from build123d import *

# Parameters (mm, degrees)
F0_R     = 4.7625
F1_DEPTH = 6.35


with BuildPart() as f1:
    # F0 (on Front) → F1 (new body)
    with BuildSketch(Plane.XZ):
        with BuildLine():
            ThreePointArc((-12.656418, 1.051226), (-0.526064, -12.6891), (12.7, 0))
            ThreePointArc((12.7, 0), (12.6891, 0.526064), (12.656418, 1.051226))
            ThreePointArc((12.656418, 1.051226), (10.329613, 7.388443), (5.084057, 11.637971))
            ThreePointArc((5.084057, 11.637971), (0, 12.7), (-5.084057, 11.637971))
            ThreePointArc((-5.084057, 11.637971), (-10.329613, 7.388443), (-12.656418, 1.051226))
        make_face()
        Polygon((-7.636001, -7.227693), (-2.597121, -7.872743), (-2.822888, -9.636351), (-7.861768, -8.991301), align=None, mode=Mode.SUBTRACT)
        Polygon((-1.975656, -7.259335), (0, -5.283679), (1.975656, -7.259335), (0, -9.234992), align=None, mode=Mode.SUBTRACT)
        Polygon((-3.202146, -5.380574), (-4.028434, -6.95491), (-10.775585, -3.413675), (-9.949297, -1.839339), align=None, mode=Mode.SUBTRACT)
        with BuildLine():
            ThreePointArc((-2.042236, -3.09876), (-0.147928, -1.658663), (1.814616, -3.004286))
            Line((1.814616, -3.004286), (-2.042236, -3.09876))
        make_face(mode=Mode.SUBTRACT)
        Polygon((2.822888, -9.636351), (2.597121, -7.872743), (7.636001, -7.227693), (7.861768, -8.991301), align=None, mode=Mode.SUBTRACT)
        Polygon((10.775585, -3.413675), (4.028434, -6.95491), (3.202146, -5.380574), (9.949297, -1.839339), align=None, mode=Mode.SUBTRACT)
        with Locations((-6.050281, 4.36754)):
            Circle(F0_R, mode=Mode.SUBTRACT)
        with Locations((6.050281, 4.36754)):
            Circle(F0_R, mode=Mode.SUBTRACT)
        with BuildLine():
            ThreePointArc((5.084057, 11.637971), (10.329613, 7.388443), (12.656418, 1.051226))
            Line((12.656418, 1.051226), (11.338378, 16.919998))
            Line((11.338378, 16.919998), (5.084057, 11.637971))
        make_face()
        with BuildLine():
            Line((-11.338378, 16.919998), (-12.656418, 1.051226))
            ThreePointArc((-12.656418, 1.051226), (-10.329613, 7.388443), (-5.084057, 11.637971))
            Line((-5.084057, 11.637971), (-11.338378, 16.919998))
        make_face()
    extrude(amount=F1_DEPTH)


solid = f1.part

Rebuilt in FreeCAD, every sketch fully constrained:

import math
import FreeCAD as App
import Part
import Sketcher
from FreeCAD import Vector
Q = App.Units.Quantity

doc = App.newDocument("Part")
body = doc.addObject("PartDesign::Body", "Body")

sketch1 = body.newObject("Sketcher::SketchObject", "Sketch")
sketch1.AttachmentSupport = (doc.getObject("XZ_Plane"), [""])
sketch1.MapMode = "FlatFace"
sketch1.addGeometry(Part.ArcOfCircle(Part.Circle(Vector(0, 0, 0), Vector(0, 0, 1), 12.7), math.radians(175.251983), math.radians(360.000001)), False)
sketch1.addGeometry(Part.ArcOfCircle(Part.Circle(Vector(0.000266, 0.000008, 0), Vector(0, 0, 1), 12.699734), math.radians(-0.000034), math.radians(4.748082)), False)
sketch1.addGeometry(Part.LineSegment(Vector(12.656418, 1.051226, 0), Vector(11.338378, 16.919998, 0)), False)
sketch1.addGeometry(Part.LineSegment(Vector(11.338378, 16.919998, 0), Vector(5.084057, 11.637971, 0)), False)
sketch1.addGeometry(Part.ArcOfCircle(Part.Circle(Vector(0, -0.000002, 0), Vector(0, 0, 1), 12.700002), math.radians(66.401854), math.radians(113.598146)), False)
sketch1.addGeometry(Part.LineSegment(Vector(-5.084057, 11.637971, 0), Vector(-11.338378, 16.919998, 0)), False)
sketch1.addGeometry(Part.LineSegment(Vector(-11.338378, 16.919998, 0), Vector(-12.656418, 1.051226, 0)), False)
sketch1.addGeometry(Part.LineSegment(Vector(-7.861768, -8.991301, 0), Vector(-7.636001, -7.227693, 0)), False)
sketch1.addGeometry(Part.LineSegment(Vector(-7.636001, -7.227693, 0), Vector(-2.597121, -7.872743, 0)), False)
sketch1.addGeometry(Part.LineSegment(Vector(-2.597121, -7.872743, 0), Vector(-2.822888, -9.636351, 0)), False)
sketch1.addGeometry(Part.LineSegment(Vector(-2.822888, -9.636351, 0), Vector(-7.861768, -8.991301, 0)), False)
sketch1.addGeometry(Part.LineSegment(Vector(0, -9.234992, 0), Vector(-1.975656, -7.259335, 0)), False)
sketch1.addGeometry(Part.LineSegment(Vector(-1.975656, -7.259335, 0), Vector(0, -5.283679, 0)), False)
sketch1.addGeometry(Part.LineSegment(Vector(0, -5.283679, 0), Vector(1.975656, -7.259335, 0)), False)
sketch1.addGeometry(Part.LineSegment(Vector(1.975656, -7.259335, 0), Vector(0, -9.234992, 0)), False)
sketch1.addGeometry(Part.LineSegment(Vector(-9.949297, -1.839339, 0), Vector(-3.202146, -5.380574, 0)), False)
sketch1.addGeometry(Part.LineSegment(Vector(-3.202146, -5.380574, 0), Vector(-4.028434, -6.95491, 0)), False)
sketch1.addGeometry(Part.LineSegment(Vector(-4.028434, -6.95491, 0), Vector(-10.775585, -3.413675, 0)), False)
sketch1.addGeometry(Part.LineSegment(Vector(-10.775585, -3.413675, 0), Vector(-9.949297, -1.839339, 0)), False)
sketch1.addGeometry(Part.LineSegment(Vector(1.814616, -3.004286, 0), Vector(-2.042236, -3.09876, 0)), False)
sketch1.addGeometry(Part.ArcOfCircle(Part.Circle(Vector(-0.098169, -3.690054, 0), Vector(0, 0, 1), 2.032), math.radians(19.723667), math.radians(163.082704)), False)
sketch1.addGeometry(Part.LineSegment(Vector(7.861768, -8.991301, 0), Vector(2.822888, -9.636351, 0)), False)
sketch1.addGeometry(Part.LineSegment(Vector(2.822888, -9.636351, 0), Vector(2.597121, -7.872743, 0)), False)
sketch1.addGeometry(Part.LineSegment(Vector(2.597121, -7.872743, 0), Vector(7.636001, -7.227693, 0)), False)
sketch1.addGeometry(Part.LineSegment(Vector(7.636001, -7.227693, 0), Vector(7.861768, -8.991301, 0)), False)
sketch1.addGeometry(Part.LineSegment(Vector(9.949297, -1.839339, 0), Vector(10.775585, -3.413675, 0)), False)
sketch1.addGeometry(Part.LineSegment(Vector(10.775585, -3.413675, 0), Vector(4.028434, -6.95491, 0)), False)
sketch1.addGeometry(Part.LineSegment(Vector(4.028434, -6.95491, 0), Vector(3.202146, -5.380574, 0)), False)
sketch1.addGeometry(Part.LineSegment(Vector(3.202146, -5.380574, 0), Vector(9.949297, -1.839339, 0)), False)
sketch1.addGeometry(Part.Circle(Vector(-6.050281, 4.36754, 0), Vector(0, 0, 1), 4.7625), False)
sketch1.addGeometry(Part.Circle(Vector(6.050281, 4.36754, 0), Vector(0, 0, 1), 4.7625), False)
sketch1.addConstraint(Sketcher.Constraint("Coincident", 0, 2, 1, 1))
sketch1.addConstraint(Sketcher.Constraint("Coincident", 1, 2, 2, 1))
sketch1.addConstraint(Sketcher.Constraint("Coincident", 2, 2, 3, 1))
sketch1.addConstraint(Sketcher.Constraint("Coincident", 3, 2, 4, 1))
sketch1.addConstraint(Sketcher.Constraint("Coincident", 4, 2, 5, 1))
sketch1.addConstraint(Sketcher.Constraint("Coincident", 5, 2, 6, 1))
sketch1.addConstraint(Sketcher.Constraint("Coincident", 6, 2, 0, 1))
sketch1.addConstraint(Sketcher.Constraint("Coincident", 7, 2, 8, 1))
sketch1.addConstraint(Sketcher.Constraint("Coincident", 8, 2, 9, 1))
sketch1.addConstraint(Sketcher.Constraint("Coincident", 9, 2, 10, 1))
sketch1.addConstraint(Sketcher.Constraint("Coincident", 10, 2, 7, 1))
sketch1.addConstraint(Sketcher.Constraint("Coincident", 11, 2, 12, 1))
sketch1.addConstraint(Sketcher.Constraint("Coincident", 12, 2, 13, 1))
sketch1.addConstraint(Sketcher.Constraint("Coincident", 13, 2, 14, 1))
sketch1.addConstraint(Sketcher.Constraint("Coincident", 14, 2, 11, 1))
sketch1.addConstraint(Sketcher.Constraint("Coincident", 15, 2, 16, 1))
sketch1.addConstraint(Sketcher.Constraint("Coincident", 16, 2, 17, 1))
sketch1.addConstraint(Sketcher.Constraint("Coincident", 17, 2, 18, 1))
sketch1.addConstraint(Sketcher.Constraint("Coincident", 18, 2, 15, 1))
sketch1.addConstraint(Sketcher.Constraint("Coincident", 19, 1, 20, 1))
sketch1.addConstraint(Sketcher.Constraint("Coincident", 20, 2, 19, 2))
sketch1.addConstraint(Sketcher.Constraint("Coincident", 21, 2, 22, 1))
sketch1.addConstraint(Sketcher.Constraint("Coincident", 22, 2, 23, 1))
sketch1.addConstraint(Sketcher.Constraint("Coincident", 23, 2, 24, 1))
sketch1.addConstraint(Sketcher.Constraint("Coincident", 24, 2, 21, 1))
sketch1.addConstraint(Sketcher.Constraint("Coincident", 25, 2, 26, 1))
sketch1.addConstraint(Sketcher.Constraint("Coincident", 26, 2, 27, 1))
sketch1.addConstraint(Sketcher.Constraint("Coincident", 27, 2, 28, 1))
sketch1.addConstraint(Sketcher.Constraint("Coincident", 28, 2, 25, 1))
sketch1.addConstraint(Sketcher.Constraint("Coincident", 0, 3, -1, 1))
sketch1.addConstraint(Sketcher.Constraint("Coincident", 4, 3, -1, 1))
sketch1.addConstraint(Sketcher.Constraint("PointOnObject", 0, 2, -1))
sketch1.addConstraint(Sketcher.Constraint("PointOnObject", 12, 2, -2))
sketch1.addConstraint(Sketcher.Constraint("PointOnObject", 14, 2, -2))
sketch1.addConstraint(Sketcher.Constraint("Radius", 0, Q("0.5 in")))
sketch1.addConstraint(Sketcher.Constraint("Radius", 4, Q("0.5000001 in")))
sketch1.addConstraint(Sketcher.Constraint("Radius", 20, Q("0.08 in")))
sketch1.addConstraint(Sketcher.Constraint("Diameter", 29, Q("0.375 in")))
sketch1.addConstraint(Sketcher.Constraint("Diameter", 30, Q("0.375 in")))
sketch1.addConstraint(Sketcher.Constraint("Distance", 8, Q("0.2 in")))
sketch1.addConstraint(Sketcher.Constraint("Distance", 10, Q("0.2 in")))
sketch1.addConstraint(Sketcher.Constraint("Distance", 15, Q("0.3 in")))
sketch1.addConstraint(Sketcher.Constraint("Distance", 17, Q("0.3 in")))
sketch1.addConstraint(Sketcher.Constraint("Distance", 21, Q("0.2 in")))
sketch1.addConstraint(Sketcher.Constraint("Distance", 23, Q("0.2 in")))
sketch1.addConstraint(Sketcher.Constraint("Distance", 26, Q("0.3 in")))
sketch1.addConstraint(Sketcher.Constraint("Distance", 28, Q("0.3 in")))
sketch1.addConstraint(Sketcher.Constraint("Distance", 7, Q("0.07 in")))
sketch1.addConstraint(Sketcher.Constraint("Distance", 9, Q("0.07 in")))
sketch1.addConstraint(Sketcher.Constraint("Distance", 11, Q("0.11 in")))
sketch1.addConstraint(Sketcher.Constraint("Distance", 12, Q("0.11 in")))
sketch1.addConstraint(Sketcher.Constraint("Distance", 13, Q("0.11 in")))
sketch1.addConstraint(Sketcher.Constraint("Distance", 14, Q("0.11 in")))
sketch1.addConstraint(Sketcher.Constraint("Distance", 16, Q("0.07 in")))
sketch1.addConstraint(Sketcher.Constraint("Distance", 18, Q("0.07 in")))
sketch1.addConstraint(Sketcher.Constraint("Distance", 22, Q("0.07 in")))
sketch1.addConstraint(Sketcher.Constraint("Distance", 24, Q("0.07 in")))
sketch1.addConstraint(Sketcher.Constraint("Distance", 25, Q("0.07 in")))
sketch1.addConstraint(Sketcher.Constraint("Distance", 27, Q("0.07 in")))
sketch1.addConstraint(Sketcher.Constraint("DistanceX", 29, 3, -1, 1, Q("0.2382 in")))
sketch1.addConstraint(Sketcher.Constraint("DistanceX", -1, 1, 30, 3, Q("0.2382 in")))
sketch1.addConstraint(Sketcher.Constraint("Radius", 1, 12.699734))
sketch1.addConstraint(Sketcher.Constraint("DistanceX", 7, 2, -1, 1, 7.636001))
sketch1.addConstraint(Sketcher.Constraint("DistanceY", 10, 2, -1, 1, 8.991301))
sketch1.addConstraint(Sketcher.Constraint("DistanceX", -1, 1, 23, 2, 7.636001))
sketch1.addConstraint(Sketcher.Constraint("DistanceY", 24, 2, -1, 1, 8.991301))
sketch1.addConstraint(Sketcher.Constraint("DistanceY", 0, 3, 2, 2, 16.919998))
sketch1.addConstraint(Sketcher.Constraint("DistanceY", 0, 3, 5, 2, 16.919998))
sketch1.addConstraint(Sketcher.Constraint("DistanceY", 7, 2, 1, 3, 7.227701))
sketch1.addConstraint(Sketcher.Constraint("DistanceX", 10, 2, 20, 3, 7.763599))
sketch1.addConstraint(Sketcher.Constraint("DistanceY", 17, 2, 6, 2, 4.464901))
sketch1.addConstraint(Sketcher.Constraint("DistanceY", 15, 2, 17, 2, 1.966899))
sketch1.addConstraint(Sketcher.Constraint("DistanceY", 25, 2, 1, 2, 4.464901))
sketch1.addConstraint(Sketcher.Constraint("Distance", 3, 8.186351))
sketch1.addConstraint(Sketcher.Constraint("Distance", 5, 8.186351))
sketch1.addConstraint(Sketcher.Constraint("Distance", 19, 3.858009))
sketch1.addConstraint(Sketcher.Constraint("DistanceX", 20, 3, -1, 1, 0.098169))
sketch1.addConstraint(Sketcher.Constraint("DistanceY", -1, 1, 29, 3, 4.36754))
sketch1.addConstraint(Sketcher.Constraint("DistanceY", -1, 1, 30, 3, 4.36754))
sketch1.addConstraint(Sketcher.Constraint("DistanceY", -1, 1, 3, 2, 11.637971))
sketch1.addConstraint(Sketcher.Constraint("DistanceY", -1, 1, 4, 2, 11.637971))
sketch1.addConstraint(Sketcher.Constraint("DistanceX", 8, 2, -1, 1, 2.597121))
sketch1.addConstraint(Sketcher.Constraint("DistanceY", 12, 2, -1, 1, 5.283679))
sketch1.addConstraint(Sketcher.Constraint("DistanceY", 16, 2, -1, 1, 6.95491))
sketch1.addConstraint(Sketcher.Constraint("DistanceY", 18, 2, -1, 1, 1.839339))
sketch1.addConstraint(Sketcher.Constraint("DistanceY", 20, 2, -1, 1, 3.09876))
sketch1.addConstraint(Sketcher.Constraint("DistanceY", 21, 2, -1, 1, 9.636351))
sketch1.addConstraint(Sketcher.Constraint("DistanceY", 26, 2, -1, 1, 6.95491))
sketch1.addConstraint(Sketcher.Constraint("DistanceY", 28, 2, -1, 1, 1.839339))
sketch1.addConstraint(Sketcher.Constraint("DistanceY", 20, 3, 4, 3, 3.690052))
sketch1.addConstraint(Sketcher.Constraint("DistanceY", 1, 3, 1, 2, 1.051218))
sketch1.addConstraint(Sketcher.Constraint("DistanceX", 9, 2, 11, 2, 0.847232))
sketch1.addConstraint(Sketcher.Constraint("DistanceX", 15, 2, 11, 2, 1.22649))
sketch1.addConstraint(Sketcher.Constraint("DistanceX", 13, 2, 21, 2, 0.847232))
sketch1.addConstraint(Sketcher.Constraint("DistanceX", 19, 1, 25, 2, 8.960969))
pad1 = body.newObject("PartDesign::Pad", "Pad")
pad1.Profile = sketch1
pad1.Length = Q("0.25 in")

doc.recompute()
